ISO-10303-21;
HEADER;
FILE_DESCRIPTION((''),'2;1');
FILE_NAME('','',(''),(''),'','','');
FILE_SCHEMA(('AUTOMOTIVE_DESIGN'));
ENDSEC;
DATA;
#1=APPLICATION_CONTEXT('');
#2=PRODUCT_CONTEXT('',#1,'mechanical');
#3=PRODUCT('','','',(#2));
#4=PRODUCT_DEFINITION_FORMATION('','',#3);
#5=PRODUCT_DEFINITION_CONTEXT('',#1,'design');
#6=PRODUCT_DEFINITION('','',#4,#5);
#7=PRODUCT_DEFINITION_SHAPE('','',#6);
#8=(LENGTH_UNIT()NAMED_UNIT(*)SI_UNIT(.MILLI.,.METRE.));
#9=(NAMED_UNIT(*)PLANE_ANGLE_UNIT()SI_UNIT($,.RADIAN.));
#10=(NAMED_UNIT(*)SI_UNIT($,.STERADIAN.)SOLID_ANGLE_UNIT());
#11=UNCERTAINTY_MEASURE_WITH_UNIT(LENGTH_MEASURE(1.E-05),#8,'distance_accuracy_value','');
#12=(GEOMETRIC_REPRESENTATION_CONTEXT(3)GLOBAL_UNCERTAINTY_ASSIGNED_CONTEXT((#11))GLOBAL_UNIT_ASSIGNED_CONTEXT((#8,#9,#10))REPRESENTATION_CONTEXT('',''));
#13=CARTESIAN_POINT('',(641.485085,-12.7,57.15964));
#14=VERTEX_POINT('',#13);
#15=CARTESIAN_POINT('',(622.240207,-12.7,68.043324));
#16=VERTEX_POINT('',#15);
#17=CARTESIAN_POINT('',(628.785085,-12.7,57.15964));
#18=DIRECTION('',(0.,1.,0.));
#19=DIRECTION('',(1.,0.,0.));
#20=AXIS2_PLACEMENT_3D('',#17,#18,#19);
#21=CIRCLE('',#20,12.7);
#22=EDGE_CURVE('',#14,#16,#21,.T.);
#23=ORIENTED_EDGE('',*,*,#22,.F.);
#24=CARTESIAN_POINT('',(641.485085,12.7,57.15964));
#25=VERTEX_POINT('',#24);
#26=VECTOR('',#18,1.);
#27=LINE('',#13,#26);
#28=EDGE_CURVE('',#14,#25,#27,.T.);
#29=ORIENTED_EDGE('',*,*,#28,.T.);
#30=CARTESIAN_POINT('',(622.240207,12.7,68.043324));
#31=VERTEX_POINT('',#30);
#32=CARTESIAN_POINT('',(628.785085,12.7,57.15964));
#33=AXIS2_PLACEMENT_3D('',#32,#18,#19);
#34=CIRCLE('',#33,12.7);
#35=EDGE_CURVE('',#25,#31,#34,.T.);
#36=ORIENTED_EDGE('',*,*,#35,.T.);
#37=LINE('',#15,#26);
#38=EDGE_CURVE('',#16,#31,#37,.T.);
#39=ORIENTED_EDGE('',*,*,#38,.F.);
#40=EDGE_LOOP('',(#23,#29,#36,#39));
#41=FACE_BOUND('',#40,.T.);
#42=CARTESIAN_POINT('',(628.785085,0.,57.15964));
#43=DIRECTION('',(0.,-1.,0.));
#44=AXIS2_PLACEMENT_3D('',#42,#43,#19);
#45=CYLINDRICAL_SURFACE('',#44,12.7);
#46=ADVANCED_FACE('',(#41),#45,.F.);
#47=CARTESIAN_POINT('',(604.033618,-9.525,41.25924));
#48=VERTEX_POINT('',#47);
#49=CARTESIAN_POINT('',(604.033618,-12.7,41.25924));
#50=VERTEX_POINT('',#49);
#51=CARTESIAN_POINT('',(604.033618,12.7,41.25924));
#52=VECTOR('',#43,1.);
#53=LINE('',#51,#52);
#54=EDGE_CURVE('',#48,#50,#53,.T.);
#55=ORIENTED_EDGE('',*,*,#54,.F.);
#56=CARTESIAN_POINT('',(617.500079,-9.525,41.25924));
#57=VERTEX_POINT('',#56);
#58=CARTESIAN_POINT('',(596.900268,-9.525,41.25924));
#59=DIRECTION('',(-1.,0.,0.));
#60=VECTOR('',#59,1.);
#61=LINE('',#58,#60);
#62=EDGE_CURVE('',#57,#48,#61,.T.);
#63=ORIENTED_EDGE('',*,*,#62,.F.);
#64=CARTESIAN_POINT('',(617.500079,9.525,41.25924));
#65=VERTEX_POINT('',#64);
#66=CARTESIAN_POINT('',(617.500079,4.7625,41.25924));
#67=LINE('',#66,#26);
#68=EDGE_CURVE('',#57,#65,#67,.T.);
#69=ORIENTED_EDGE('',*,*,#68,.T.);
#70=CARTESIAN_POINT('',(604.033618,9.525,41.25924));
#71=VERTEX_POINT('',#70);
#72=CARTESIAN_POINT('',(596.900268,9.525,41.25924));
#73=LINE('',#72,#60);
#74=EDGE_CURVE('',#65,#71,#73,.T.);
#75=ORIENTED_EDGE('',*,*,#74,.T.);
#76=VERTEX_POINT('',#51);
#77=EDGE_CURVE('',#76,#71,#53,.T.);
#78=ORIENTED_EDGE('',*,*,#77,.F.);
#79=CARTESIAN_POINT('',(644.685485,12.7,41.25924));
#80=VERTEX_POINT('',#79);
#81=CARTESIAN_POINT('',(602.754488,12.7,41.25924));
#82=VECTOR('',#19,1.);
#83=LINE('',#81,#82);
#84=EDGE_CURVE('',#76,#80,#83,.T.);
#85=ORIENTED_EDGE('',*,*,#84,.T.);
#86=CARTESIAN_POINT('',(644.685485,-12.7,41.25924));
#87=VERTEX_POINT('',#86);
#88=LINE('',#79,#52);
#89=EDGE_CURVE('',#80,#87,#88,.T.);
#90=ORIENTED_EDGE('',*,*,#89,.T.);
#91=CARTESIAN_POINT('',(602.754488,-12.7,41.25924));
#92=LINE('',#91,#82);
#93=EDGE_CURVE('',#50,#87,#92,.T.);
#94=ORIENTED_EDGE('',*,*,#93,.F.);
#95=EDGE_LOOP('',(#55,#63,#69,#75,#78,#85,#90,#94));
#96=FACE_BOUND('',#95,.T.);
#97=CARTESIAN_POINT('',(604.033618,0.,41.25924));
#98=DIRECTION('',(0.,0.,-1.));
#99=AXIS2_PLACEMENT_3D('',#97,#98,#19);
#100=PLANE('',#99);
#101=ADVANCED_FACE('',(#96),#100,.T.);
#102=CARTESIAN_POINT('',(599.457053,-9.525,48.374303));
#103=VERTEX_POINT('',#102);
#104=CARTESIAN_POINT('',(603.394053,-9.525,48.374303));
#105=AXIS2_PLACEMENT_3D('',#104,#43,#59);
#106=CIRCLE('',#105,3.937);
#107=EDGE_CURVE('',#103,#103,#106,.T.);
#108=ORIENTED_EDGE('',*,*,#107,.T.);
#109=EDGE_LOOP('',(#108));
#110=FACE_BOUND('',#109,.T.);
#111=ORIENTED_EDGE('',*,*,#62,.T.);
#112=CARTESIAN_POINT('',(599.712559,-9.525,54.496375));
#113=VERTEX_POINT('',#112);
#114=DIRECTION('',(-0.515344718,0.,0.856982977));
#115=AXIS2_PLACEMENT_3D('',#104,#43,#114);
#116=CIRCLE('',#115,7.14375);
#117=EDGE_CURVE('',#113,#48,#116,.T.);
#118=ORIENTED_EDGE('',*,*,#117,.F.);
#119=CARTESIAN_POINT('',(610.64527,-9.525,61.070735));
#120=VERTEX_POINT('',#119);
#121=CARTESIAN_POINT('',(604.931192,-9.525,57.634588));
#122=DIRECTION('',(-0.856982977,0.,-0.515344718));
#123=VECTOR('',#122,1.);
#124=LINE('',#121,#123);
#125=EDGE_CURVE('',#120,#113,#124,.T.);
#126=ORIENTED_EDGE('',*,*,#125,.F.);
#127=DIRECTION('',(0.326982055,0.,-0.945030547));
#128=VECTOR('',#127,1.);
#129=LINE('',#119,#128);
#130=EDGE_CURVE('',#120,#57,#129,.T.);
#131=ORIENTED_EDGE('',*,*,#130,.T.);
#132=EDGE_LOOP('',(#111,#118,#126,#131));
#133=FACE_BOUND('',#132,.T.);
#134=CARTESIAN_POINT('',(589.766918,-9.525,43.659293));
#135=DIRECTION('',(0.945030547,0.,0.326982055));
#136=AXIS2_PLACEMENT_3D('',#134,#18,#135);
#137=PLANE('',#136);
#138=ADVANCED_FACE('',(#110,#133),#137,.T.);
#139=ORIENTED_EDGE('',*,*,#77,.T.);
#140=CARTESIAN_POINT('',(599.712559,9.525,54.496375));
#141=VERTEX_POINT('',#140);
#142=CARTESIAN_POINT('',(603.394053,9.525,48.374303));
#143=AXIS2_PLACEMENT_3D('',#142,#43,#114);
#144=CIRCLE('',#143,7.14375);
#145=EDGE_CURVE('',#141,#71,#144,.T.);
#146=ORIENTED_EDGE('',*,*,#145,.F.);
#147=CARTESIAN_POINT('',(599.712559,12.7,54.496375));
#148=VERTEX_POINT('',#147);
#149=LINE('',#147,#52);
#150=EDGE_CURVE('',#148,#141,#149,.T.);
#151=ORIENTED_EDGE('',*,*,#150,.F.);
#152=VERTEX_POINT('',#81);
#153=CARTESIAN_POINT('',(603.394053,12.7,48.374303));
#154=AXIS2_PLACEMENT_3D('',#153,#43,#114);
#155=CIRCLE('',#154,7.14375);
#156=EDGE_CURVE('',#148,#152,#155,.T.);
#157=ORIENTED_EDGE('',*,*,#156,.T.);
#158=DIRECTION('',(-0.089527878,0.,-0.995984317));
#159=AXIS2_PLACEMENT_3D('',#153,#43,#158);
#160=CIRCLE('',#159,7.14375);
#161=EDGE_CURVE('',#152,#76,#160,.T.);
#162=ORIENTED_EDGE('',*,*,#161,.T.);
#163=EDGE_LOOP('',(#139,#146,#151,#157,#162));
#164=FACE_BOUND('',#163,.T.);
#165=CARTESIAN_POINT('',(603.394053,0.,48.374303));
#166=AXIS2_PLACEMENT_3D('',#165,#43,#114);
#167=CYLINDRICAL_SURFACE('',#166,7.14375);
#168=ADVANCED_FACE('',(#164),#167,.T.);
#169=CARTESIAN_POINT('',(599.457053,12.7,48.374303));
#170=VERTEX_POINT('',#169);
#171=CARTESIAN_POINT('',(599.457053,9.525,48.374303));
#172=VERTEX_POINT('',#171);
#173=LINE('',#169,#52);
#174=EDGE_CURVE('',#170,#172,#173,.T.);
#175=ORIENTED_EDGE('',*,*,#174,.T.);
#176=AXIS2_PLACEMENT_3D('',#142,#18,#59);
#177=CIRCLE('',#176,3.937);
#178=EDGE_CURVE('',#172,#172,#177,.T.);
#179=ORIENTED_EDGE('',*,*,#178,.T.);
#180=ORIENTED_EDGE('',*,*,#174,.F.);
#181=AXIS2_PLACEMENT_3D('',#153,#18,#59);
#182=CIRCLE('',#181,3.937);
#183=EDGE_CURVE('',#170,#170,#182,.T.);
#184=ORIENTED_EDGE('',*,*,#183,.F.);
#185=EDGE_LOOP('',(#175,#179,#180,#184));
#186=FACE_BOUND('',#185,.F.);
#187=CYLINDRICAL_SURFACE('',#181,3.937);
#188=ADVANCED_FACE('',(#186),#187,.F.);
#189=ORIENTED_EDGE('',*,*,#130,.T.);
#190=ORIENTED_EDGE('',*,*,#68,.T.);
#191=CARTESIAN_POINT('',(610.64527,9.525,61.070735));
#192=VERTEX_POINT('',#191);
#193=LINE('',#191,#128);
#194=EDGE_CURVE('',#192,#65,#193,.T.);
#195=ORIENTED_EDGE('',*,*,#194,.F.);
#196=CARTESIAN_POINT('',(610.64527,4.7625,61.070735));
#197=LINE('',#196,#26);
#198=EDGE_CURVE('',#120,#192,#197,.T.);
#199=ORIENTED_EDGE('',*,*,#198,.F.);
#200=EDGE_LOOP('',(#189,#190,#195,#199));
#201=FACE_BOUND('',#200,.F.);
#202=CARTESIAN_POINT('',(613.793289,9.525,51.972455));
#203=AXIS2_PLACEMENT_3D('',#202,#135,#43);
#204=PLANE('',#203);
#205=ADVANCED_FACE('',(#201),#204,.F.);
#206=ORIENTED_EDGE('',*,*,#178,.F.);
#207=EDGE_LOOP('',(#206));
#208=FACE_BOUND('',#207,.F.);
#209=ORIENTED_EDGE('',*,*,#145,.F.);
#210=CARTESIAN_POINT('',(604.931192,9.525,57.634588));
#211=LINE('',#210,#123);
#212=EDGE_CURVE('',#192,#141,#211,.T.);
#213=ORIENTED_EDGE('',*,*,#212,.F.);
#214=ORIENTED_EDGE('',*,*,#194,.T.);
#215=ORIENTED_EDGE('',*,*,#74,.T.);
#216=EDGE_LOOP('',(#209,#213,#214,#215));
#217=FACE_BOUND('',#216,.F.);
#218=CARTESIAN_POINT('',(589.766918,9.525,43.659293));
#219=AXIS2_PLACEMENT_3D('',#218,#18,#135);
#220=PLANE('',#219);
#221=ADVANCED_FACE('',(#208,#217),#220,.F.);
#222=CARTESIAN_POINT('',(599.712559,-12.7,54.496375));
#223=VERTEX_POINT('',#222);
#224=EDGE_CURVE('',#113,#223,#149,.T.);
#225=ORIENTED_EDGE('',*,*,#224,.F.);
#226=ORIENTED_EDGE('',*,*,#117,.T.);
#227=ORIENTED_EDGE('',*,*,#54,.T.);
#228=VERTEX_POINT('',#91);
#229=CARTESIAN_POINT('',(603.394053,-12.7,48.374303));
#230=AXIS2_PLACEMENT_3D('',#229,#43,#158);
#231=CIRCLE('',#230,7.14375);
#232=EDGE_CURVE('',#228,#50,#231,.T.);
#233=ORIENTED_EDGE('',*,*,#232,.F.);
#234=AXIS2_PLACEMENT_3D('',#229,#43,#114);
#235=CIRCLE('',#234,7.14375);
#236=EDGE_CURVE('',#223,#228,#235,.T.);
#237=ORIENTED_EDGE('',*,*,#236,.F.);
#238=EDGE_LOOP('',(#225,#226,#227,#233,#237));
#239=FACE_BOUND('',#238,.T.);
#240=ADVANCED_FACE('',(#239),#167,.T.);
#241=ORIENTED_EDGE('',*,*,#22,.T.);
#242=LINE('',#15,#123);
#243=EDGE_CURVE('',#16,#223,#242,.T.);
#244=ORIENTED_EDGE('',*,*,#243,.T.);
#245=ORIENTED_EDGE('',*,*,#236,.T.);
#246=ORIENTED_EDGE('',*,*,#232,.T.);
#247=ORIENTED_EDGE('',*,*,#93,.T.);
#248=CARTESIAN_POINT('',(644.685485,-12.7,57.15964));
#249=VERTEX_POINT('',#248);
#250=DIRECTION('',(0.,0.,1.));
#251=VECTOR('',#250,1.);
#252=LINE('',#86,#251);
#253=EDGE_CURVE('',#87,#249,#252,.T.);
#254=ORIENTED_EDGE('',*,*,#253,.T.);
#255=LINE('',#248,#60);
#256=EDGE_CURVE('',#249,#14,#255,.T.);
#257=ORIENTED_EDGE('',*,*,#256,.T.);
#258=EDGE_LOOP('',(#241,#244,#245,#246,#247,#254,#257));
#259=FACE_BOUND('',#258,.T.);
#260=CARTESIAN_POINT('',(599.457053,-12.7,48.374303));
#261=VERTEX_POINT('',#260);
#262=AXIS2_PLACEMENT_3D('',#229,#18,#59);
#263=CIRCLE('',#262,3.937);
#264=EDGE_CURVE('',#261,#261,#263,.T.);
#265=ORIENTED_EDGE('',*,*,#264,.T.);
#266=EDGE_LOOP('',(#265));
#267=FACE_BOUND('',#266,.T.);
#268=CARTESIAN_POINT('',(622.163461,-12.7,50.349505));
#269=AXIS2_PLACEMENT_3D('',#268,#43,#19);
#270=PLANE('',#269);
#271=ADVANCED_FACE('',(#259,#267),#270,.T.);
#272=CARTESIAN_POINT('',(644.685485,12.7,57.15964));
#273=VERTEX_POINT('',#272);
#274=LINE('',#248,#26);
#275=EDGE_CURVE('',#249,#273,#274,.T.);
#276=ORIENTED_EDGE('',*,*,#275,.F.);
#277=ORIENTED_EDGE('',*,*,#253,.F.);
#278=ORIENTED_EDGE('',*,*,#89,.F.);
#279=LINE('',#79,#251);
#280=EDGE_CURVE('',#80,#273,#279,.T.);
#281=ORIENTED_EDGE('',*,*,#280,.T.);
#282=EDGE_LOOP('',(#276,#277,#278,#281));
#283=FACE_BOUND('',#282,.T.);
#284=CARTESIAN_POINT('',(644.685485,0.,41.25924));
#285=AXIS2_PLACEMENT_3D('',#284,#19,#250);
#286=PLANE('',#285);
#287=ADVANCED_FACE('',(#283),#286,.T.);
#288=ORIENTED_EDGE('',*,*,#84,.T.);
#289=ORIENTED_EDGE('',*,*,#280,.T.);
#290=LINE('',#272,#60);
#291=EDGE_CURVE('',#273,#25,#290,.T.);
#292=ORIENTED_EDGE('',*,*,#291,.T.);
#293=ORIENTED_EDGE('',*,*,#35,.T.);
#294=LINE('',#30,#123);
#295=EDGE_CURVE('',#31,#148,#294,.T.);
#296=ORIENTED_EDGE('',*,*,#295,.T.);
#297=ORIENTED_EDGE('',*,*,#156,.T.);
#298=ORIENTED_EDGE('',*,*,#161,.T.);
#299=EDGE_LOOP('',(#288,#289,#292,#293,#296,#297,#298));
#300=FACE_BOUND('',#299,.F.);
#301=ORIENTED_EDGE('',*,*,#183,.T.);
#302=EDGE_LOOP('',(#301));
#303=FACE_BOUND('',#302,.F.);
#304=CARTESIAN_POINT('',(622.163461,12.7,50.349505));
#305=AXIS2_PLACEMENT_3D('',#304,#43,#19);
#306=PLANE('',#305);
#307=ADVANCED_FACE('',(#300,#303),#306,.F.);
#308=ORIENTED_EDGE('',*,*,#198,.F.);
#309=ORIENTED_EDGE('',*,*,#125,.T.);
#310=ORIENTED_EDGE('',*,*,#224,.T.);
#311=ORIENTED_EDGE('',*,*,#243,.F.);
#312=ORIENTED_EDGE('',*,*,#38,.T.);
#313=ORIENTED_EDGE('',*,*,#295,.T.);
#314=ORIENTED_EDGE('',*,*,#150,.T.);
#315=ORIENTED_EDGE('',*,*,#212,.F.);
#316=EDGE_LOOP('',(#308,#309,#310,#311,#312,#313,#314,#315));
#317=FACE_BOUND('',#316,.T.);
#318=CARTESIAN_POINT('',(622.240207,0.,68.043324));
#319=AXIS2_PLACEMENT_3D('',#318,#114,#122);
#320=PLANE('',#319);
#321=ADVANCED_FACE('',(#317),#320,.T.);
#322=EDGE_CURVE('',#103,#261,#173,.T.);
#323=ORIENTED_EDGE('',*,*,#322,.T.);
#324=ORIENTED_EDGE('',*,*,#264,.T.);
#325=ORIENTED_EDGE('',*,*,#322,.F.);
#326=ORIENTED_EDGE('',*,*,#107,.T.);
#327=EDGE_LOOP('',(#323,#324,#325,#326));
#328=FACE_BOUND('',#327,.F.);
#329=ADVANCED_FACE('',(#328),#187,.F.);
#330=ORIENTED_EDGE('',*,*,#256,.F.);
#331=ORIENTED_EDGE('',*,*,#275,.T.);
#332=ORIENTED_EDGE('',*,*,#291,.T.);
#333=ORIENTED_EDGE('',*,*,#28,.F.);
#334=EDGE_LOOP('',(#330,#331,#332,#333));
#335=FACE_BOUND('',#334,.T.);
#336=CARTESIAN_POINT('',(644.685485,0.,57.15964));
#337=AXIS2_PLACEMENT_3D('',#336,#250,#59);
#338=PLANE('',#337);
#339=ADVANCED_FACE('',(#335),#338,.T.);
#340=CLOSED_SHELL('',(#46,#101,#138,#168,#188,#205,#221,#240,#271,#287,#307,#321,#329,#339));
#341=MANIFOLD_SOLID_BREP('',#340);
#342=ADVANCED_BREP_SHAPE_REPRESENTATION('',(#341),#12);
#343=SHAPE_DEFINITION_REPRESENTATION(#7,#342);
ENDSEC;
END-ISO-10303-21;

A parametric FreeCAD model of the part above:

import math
import FreeCAD as App
import Part
import Sketcher

V = App.Vector
Q = App.Units.Quantity

doc = App.newDocument("Part")
body = doc.addObject("PartDesign::Body", "Body")

sketch1 = body.newObject("Sketcher::SketchObject", "Sketch")
sketch1.AttachmentSupport = (doc.getObject("XZ_Plane"), [""])
sketch1.MapMode = "FlatFace"
sketch1.addGeometry([
    Part.LineSegment(V(622.2, 68, 0), V(599.7, 54.5, 0)),
    Part.ArcOfCircle(Part.Circle(V(603.4, 48.4, 0), V(0, 0, 1), 7.1), math.radians(121), math.radians(265)),
    Part.ArcOfCircle(Part.Circle(V(603.4, 48.4, 0), V(0, 0, 1), 7.1), math.radians(-95.14), math.radians(-84.86)),
    Part.LineSegment(V(604, 41.3, 0), V(644.7, 41.3, 0)),
    Part.LineSegment(V(644.7, 41.3, 0), V(644.7, 57.2, 0)),
    Part.LineSegment(V(644.7, 57.2, 0), V(641.5, 57.2, 0)),
    Part.ArcOfCircle(Part.Circle(V(628.8, 57.2, 0), V(0, 0, 1), 12.7), math.radians(121), math.radians(360)),
], False)
sketch1.addConstraint([
    Sketcher.Constraint("Tangent", 0, 2, 1, 1),
    Sketcher.Constraint("Tangent", 1, 2, 2, 1),
    Sketcher.Constraint("Coincident", 2, 2, 3, 1),
    Sketcher.Constraint("Coincident", 3, 2, 4, 1),
    Sketcher.Constraint("Coincident", 4, 2, 5, 1),
    Sketcher.Constraint("Coincident", 5, 2, 6, 2),
    Sketcher.Constraint("Tangent", 6, 1, 0, 1),
    Sketcher.Constraint("Horizontal", 3),
    Sketcher.Constraint("Vertical", 4),
    Sketcher.Constraint("Horizontal", 5),
    Sketcher.Constraint("Equal", 1, 2),
    Sketcher.Constraint("Horizontal", 1, 2, 2, 2),
    Sketcher.Constraint("Horizontal", 6, 3, 4, 2),
    Sketcher.Constraint("Radius", 6, Q("0.5 in")),
    Sketcher.Constraint("Radius", 1, Q("0.28125 in")),
    Sketcher.Constraint("DistanceX", 5, 2, 5, 1, Q("0.126 in")),
    Sketcher.Constraint("DistanceY", 4, 1, 4, 2, Q("0.626 in")),
    Sketcher.Constraint("DistanceY", -1, 1, 1, 3, Q("1.9045001 in")),
    Sketcher.Constraint("Distance", 0, Q("26.287159 mm")),
    Sketcher.Constraint("DistanceX", 3, 1, 3, 2, Q("40.651867 mm")),
    Sketcher.Constraint("DistanceX", -1, 1, 0, 2, Q("599.712559 mm")),
])
pad1 = body.newObject("PartDesign::Pad", "Pad")
pad1.Profile = sketch1
pad1.Type = "TwoLengths"
pad1.Length = Q("0.5 in")
pad1.Length2 = Q("0.5 in")

sketch2 = body.newObject("Sketcher::SketchObject", "Sketch001")
sketch2.AttachmentSupport = (doc.getObject("XZ_Plane"), [""])
sketch2.MapMode = "FlatFace"
sketch2.AttachmentOffset = App.Placement(V(0, 0, -0.5 * 25.4), App.Rotation())
sketch2.addGeometry(Part.Circle(V(603.4, 48.4, 0), V(0, 0, 1), 3.9), False)
sketch2.addConstraint([
    Sketcher.Constraint("Diameter", 0, Q("0.31 in")),
    Sketcher.Constraint("DistanceY", -1, 1, 0, 3, Q("1.9045001 in")),
    Sketcher.Constraint("DistanceX", -1, 1, 0, 3, Q("603.394053 mm")),
])
pocket1 = body.newObject("PartDesign::Pocket", "Pocket")
pocket1.Profile = sketch2
pocket1.Type = "ThroughAll"
pocket1.Reversed = True

sketch3 = body.newObject("Sketcher::SketchObject", "Sketch002")
sketch3.Placement = App.Placement(V(49.565193, 0, -143.251353), App.Rotation(V(0.945030547, 0, 0.326982055), V(0, -0.999999999, 0), V(0.326982055, 0, -0.945030547), "ZXY"))
sketch3.addGeometry([
    Part.LineSegment(V(572, 10, 0), V(572, -10, 0)),
    Part.LineSegment(V(572, -10, 0), V(597, -10, 0)),
    Part.LineSegment(V(597, -10, 0), V(597, 10, 0)),
    Part.LineSegment(V(597, 10, 0), V(572, 10, 0)),
], False)
sketch3.addConstraint([
    Sketcher.Constraint("Coincident", 0, 2, 1, 1),
    Sketcher.Constraint("Coincident", 1, 2, 2, 1),
    Sketcher.Constraint("Coincident", 2, 2, 3, 1),
    Sketcher.Constraint("Coincident", 3, 2, 0, 1),
    Sketcher.Constraint("Vertical", 0),
    Sketcher.Constraint("Horizontal", 1),
    Sketcher.Constraint("Vertical", 2),
    Sketcher.Constraint("Horizontal", 3),
    Sketcher.Constraint("DistanceY", 0, 2, 0, 1, Q("0.75 in")),
    Sketcher.Constraint("DistanceY", 0, 2, -1, 1, Q("0.375 in")),
    Sketcher.Constraint("DistanceX", 1, 1, 1, 2, Q("25.42391 mm")),
    Sketcher.Constraint("DistanceX", -1, 1, 0, 2, Q("571.623558 mm")),
])
pocket2 = body.newObject("PartDesign::Pocket", "Pocket001")
pocket2.Profile = sketch3
pocket2.Type = "ThroughAll"
pocket2.Midplane = True

doc.recompute()
